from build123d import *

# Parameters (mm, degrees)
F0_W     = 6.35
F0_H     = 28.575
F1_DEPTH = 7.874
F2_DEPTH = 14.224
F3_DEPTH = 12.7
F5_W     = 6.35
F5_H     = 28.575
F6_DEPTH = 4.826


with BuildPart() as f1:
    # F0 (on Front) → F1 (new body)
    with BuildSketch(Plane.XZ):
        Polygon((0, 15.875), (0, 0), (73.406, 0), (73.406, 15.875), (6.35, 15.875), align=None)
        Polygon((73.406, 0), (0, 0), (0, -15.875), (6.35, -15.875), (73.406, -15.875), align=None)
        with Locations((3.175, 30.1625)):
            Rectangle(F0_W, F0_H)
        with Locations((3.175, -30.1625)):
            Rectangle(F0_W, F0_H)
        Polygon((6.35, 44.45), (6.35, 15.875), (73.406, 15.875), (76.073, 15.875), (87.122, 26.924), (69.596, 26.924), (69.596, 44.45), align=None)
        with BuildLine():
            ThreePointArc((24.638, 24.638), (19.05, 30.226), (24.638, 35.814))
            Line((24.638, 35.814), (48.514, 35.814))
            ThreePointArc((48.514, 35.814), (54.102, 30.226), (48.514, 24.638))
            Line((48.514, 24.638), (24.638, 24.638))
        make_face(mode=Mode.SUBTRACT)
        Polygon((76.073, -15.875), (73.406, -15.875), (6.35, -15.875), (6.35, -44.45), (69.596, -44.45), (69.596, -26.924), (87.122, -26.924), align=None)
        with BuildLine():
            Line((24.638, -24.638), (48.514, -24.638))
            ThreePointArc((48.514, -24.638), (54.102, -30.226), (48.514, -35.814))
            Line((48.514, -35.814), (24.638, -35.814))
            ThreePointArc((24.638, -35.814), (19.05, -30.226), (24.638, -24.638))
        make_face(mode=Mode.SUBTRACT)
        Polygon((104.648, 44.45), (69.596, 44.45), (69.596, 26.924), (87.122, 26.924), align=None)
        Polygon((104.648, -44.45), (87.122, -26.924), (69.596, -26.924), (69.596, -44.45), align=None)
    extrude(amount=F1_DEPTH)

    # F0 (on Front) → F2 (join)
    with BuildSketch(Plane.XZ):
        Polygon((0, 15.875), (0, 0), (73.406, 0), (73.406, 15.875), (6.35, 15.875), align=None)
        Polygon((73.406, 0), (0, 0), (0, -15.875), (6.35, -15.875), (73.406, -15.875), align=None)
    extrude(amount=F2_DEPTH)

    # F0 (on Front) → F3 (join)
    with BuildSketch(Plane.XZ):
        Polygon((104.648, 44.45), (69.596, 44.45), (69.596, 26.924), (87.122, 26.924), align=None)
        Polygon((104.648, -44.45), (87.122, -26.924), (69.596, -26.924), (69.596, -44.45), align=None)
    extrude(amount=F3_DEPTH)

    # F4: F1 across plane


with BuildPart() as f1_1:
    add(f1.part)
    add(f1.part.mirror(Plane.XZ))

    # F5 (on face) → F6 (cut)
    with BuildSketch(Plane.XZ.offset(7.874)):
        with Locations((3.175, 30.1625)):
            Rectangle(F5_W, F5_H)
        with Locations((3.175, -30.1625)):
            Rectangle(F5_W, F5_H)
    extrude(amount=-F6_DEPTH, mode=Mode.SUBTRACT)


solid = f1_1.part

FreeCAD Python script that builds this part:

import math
import FreeCAD as App
import Part
import Sketcher
Q = App.Units.Quantity


def add_polygon(sketch, points):
    """Adds a closed chain of lines whose ends are joined by coincident constraints."""
    first, n = sketch.GeometryCount, len(points)
    for a, b in zip(points, points[1:] + points[:1]):
        sketch.addGeometry(Part.LineSegment(App.Vector(*a, 0), App.Vector(*b, 0)), False)
    for i in range(n):
        sketch.addConstraint(Sketcher.Constraint("Coincident", first + i, 2, first + (i + 1) % n, 1))

doc = App.newDocument("Part")
body = doc.addObject("PartDesign::Body", "Body")

sketch1 = body.newObject("Sketcher::SketchObject", "Sketch")
sketch1.AttachmentSupport = (doc.getObject("XZ_Plane"), [""])
sketch1.MapMode = "FlatFace"
add_polygon(sketch1, [(73.4, -15.9), (73.4, 15.9), (76.1, 15.9), (104.6, 44.5), (0, 44.5), (0, -44.5), (104.6, -44.5), (76.1, -15.9)])
sketch1.addGeometry(Part.ArcOfCircle(Part.Circle(App.Vector(24.6, -30.2, 0), App.Vector(0, 0, 1), 5.6), math.radians(90), math.radians(270)), False)
sketch1.addGeometry(Part.LineSegment(App.Vector(24.6, -24.6, 0), App.Vector(48.5, -24.6, 0)), False)
sketch1.addGeometry(Part.ArcOfCircle(Part.Circle(App.Vector(48.5, -30.2, 0), App.Vector(0, 0, 1), 5.6), math.radians(-90), math.radians(90)), False)
sketch1.addGeometry(Part.LineSegment(App.Vector(48.5, -35.8, 0), App.Vector(24.6, -35.8, 0)), False)
sketch1.addGeometry(Part.LineSegment(App.Vector(48.5, 24.6, 0), App.Vector(24.6, 24.6, 0)), False)
sketch1.addGeometry(Part.ArcOfCircle(Part.Circle(App.Vector(24.6, 30.2, 0), App.Vector(0, 0, 1), 5.6), math.radians(90), math.radians(270)), False)
sketch1.addGeometry(Part.LineSegment(App.Vector(24.6, 35.8, 0), App.Vector(48.5, 35.8, 0)), False)
sketch1.addGeometry(Part.ArcOfCircle(Part.Circle(App.Vector(48.5, 30.2, 0), App.Vector(0, 0, 1), 5.6), math.radians(-90), math.radians(90)), False)
sketch1.addConstraint(Sketcher.Constraint("Tangent", 8, 1, 9, 1))
sketch1.addConstraint(Sketcher.Constraint("Tangent", 9, 2, 10, 2))
sketch1.addConstraint(Sketcher.Constraint("Tangent", 10, 1, 11, 1))
sketch1.addConstraint(Sketcher.Constraint("Tangent", 11, 2, 8, 2))
sketch1.addConstraint(Sketcher.Constraint("Tangent", 12, 2, 13, 2))
sketch1.addConstraint(Sketcher.Constraint("Tangent", 13, 1, 14, 1))
sketch1.addConstraint(Sketcher.Constraint("Tangent", 14, 2, 15, 2))
sketch1.addConstraint(Sketcher.Constraint("Tangent", 15, 1, 12, 1))
sketch1.addConstraint(Sketcher.Constraint("Vertical", 0))
sketch1.addConstraint(Sketcher.Constraint("Horizontal", 1))
sketch1.addConstraint(Sketcher.Constraint("Horizontal", 3))
sketch1.addConstraint(Sketcher.Constraint("Vertical", 4))
sketch1.addConstraint(Sketcher.Constraint("Horizontal", 5))
sketch1.addConstraint(Sketcher.Constraint("Horizontal", 7))
sketch1.addConstraint(Sketcher.Constraint("Horizontal", 9))
sketch1.addConstraint(Sketcher.Constraint("Horizontal", 11))
sketch1.addConstraint(Sketcher.Constraint("Horizontal", 12))
sketch1.addConstraint(Sketcher.Constraint("Horizontal", 14))
sketch1.addConstraint(Sketcher.Constraint("Equal", 10, 13))
sketch1.addConstraint(Sketcher.Constraint("Symmetric", 3, 2, 4, 2, -1, 1))
sketch1.addConstraint(Sketcher.Constraint("Symmetric", 8, 3, 13, 3, -1))
sketch1.addConstraint(Sketcher.Constraint("Symmetric", 1, 2, 6, 2, -1))
sketch1.addConstraint(Sketcher.Constraint("Perpendicular", 2, 6))
sketch1.addConstraint(Sketcher.Constraint("Vertical", 10, 3, 15, 3))
sketch1.addConstraint(Sketcher.Constraint("Vertical", 2, 2, 5, 2))
sketch1.addConstraint(Sketcher.Constraint("Radius", 8, Q("0.22 in")))
sketch1.addConstraint(Sketcher.Constraint("DistanceY", 4, 2, 4, 1, Q("3.5 in")))
sketch1.addConstraint(Sketcher.Constraint("DistanceX", 3, 2, 3, 1, Q("4.12 in")))
sketch1.addConstraint(Sketcher.Constraint("DistanceX", 9, 1, 9, 2, Q("0.94 in")))
sketch1.addConstraint(Sketcher.Constraint("DistanceY", 0, 1, 0, 2, Q("1.25 in")))
sketch1.addConstraint(Sketcher.Constraint("DistanceX", 1, 1, 1, 2, Q("0.105 in")))
sketch1.addConstraint(Sketcher.Constraint("DistanceX", -1, 1, 8, 3, Q("0.97 in")))
sketch1.addConstraint(Sketcher.Constraint("DistanceY", 8, 3, -1, 1, Q("1.19 in")))
pad1 = body.newObject("PartDesign::Pad", "Pad")
pad1.Profile = sketch1
pad1.Length = Q("0.31 in")

sketch2 = body.newObject("Sketcher::SketchObject", "Sketch001")
sketch2.AttachmentSupport = (doc.getObject("XZ_Plane"), [""])
sketch2.MapMode = "FlatFace"
add_polygon(sketch2, [(0, 16), (0, -16), (73, -16), (73, 16)])
sketch2.addConstraint(Sketcher.Constraint("Vertical", 0))
sketch2.addConstraint(Sketcher.Constraint("Horizontal", 1))
sketch2.addConstraint(Sketcher.Constraint("Vertical", 2))
sketch2.addConstraint(Sketcher.Constraint("Horizontal", 3))
sketch2.addConstraint(Sketcher.Constraint("Symmetric", 0, 2, 3, 2, -1, 1))
sketch2.addConstraint(Sketcher.Constraint("DistanceX", 1, 1, 1, 2, Q("2.89 in")))
sketch2.addConstraint(Sketcher.Constraint("DistanceY", 0, 2, 0, 1, Q("1.25 in")))
pad2 = body.newObject("PartDesign::Pad", "Pad001")
pad2.Profile = sketch2
pad2.Length = Q("0.56 in")

sketch3 = body.newObject("Sketcher::SketchObject", "Sketch002")
sketch3.AttachmentSupport = (doc.getObject("XZ_Plane"), [""])
sketch3.MapMode = "FlatFace"
add_polygon(sketch3, [(105, 44), (70, 44), (70, 27), (87, 27)])
add_polygon(sketch3, [(105, -44), (87, -27), (70, -27), (70, -44)])
sketch3.addConstraint(Sketcher.Constraint("Horizontal", 0))
sketch3.addConstraint(Sketcher.Constraint("Vertical", 1))
sketch3.addConstraint(Sketcher.Constraint("Horizontal", 2))
sketch3.addConstraint(Sketcher.Constraint("Horizontal", 5))
sketch3.addConstraint(Sketcher.Constraint("Vertical", 6))
sketch3.addConstraint(Sketcher.Constraint("Horizontal", 7))
sketch3.addConstraint(Sketcher.Constraint("Symmetric", 2, 2, 4, 2, -1))
sketch3.addConstraint(Sketcher.Constraint("Symmetric", 0, 2, 6, 2, -1))
sketch3.addConstraint(Sketcher.Constraint("Perpendicular", 3, 4))
sketch3.addConstraint(Sketcher.Constraint("Vertical", 3, 2, 7, 2))
sketch3.addConstraint(Sketcher.Constraint("Equal", 5, 1))
sketch3.addConstraint(Sketcher.Constraint("DistanceX", 0, 2, 0, 1, Q("1.38 in")))
sketch3.addConstraint(Sketcher.Constraint("DistanceY", 6, 2, 0, 2, Q("3.5 in")))
sketch3.addConstraint(Sketcher.Constraint("DistanceX", -1, 1, 0, 2, Q("2.74 in")))
pad3 = body.newObject("PartDesign::Pad", "Pad002")
pad3.Profile = sketch3
pad3.Length = Q("0.5 in")
body2 = doc.addObject("PartDesign::Body", "Body001")
doc.recompute()

body2.BaseFeature = body
doc.recompute()

mirroring = doc.addObject("Part::Mirroring", "Mirroring")
mirroring.Source = body
mirroring.Base = App.Vector(0, 0, 0)
mirroring.Normal = App.Vector(0, -1, 0)
body3 = doc.addObject("PartDesign::Body", "Body002")
body3.BaseFeature = mirroring
boolean = body2.newObject("PartDesign::Boolean", "Boolean")
boolean.Type = "Fuse"
boolean.addObjects([body3])
doc.recompute()

sketch4 = body2.newObject("Sketcher::SketchObject", "Sketch003")
sketch4.AttachmentSupport = (doc.getObject("XZ_Plane001"), [""])
sketch4.MapMode = "FlatFace"
sketch4.AttachmentOffset = App.Placement(App.Vector(0, 0, 0.31 * 25.4), App.Rotation())
add_polygon(sketch4, [(0, 44), (0, 16), (6, 16), (6, 44)])
add_polygon(sketch4, [(0, -16), (0, -44), (6, -44), (6, -16)])
sketch4.addConstraint(Sketcher.Constraint("Vertical", 0))
sketch4.addConstraint(Sketcher.Constraint("Horizontal", 1))
sketch4.addConstraint(Sketcher.Constraint("Vertical", 2))
sketch4.addConstraint(Sketcher.Constraint("Horizontal", 3))
sketch4.addConstraint(Sketcher.Constraint("Vertical", 4))
sketch4.addConstraint(Sketcher.Constraint("Horizontal", 5))
sketch4.addConstraint(Sketcher.Constraint("Vertical", 6))
sketch4.addConstraint(Sketcher.Constraint("Horizontal", 7))
sketch4.addConstraint(Sketcher.Constraint("Symmetric", 3, 2, 4, 2, -1, 1))
sketch4.addConstraint(Sketcher.Constraint("Symmetric", 1, 2, 6, 2, -1))
sketch4.addConstraint(Sketcher.Constraint("PointOnObject", 0, 2, -2))
sketch4.addConstraint(Sketcher.Constraint("DistanceX", 1, 1, 1, 2, Q("0.25 in")))
sketch4.addConstraint(Sketcher.Constraint("DistanceY", 4, 2, 3, 2, Q("3.5 in")))
sketch4.addConstraint(Sketcher.Constraint("DistanceY", 0, 2, 0, 1, Q("1.125 in")))
pocket1 = body2.newObject("PartDesign::Pocket", "Pocket")
pocket1.Profile = sketch4
pocket1.Length = Q("0.19 in")
mirroring.Visibility = False

doc.recompute()
